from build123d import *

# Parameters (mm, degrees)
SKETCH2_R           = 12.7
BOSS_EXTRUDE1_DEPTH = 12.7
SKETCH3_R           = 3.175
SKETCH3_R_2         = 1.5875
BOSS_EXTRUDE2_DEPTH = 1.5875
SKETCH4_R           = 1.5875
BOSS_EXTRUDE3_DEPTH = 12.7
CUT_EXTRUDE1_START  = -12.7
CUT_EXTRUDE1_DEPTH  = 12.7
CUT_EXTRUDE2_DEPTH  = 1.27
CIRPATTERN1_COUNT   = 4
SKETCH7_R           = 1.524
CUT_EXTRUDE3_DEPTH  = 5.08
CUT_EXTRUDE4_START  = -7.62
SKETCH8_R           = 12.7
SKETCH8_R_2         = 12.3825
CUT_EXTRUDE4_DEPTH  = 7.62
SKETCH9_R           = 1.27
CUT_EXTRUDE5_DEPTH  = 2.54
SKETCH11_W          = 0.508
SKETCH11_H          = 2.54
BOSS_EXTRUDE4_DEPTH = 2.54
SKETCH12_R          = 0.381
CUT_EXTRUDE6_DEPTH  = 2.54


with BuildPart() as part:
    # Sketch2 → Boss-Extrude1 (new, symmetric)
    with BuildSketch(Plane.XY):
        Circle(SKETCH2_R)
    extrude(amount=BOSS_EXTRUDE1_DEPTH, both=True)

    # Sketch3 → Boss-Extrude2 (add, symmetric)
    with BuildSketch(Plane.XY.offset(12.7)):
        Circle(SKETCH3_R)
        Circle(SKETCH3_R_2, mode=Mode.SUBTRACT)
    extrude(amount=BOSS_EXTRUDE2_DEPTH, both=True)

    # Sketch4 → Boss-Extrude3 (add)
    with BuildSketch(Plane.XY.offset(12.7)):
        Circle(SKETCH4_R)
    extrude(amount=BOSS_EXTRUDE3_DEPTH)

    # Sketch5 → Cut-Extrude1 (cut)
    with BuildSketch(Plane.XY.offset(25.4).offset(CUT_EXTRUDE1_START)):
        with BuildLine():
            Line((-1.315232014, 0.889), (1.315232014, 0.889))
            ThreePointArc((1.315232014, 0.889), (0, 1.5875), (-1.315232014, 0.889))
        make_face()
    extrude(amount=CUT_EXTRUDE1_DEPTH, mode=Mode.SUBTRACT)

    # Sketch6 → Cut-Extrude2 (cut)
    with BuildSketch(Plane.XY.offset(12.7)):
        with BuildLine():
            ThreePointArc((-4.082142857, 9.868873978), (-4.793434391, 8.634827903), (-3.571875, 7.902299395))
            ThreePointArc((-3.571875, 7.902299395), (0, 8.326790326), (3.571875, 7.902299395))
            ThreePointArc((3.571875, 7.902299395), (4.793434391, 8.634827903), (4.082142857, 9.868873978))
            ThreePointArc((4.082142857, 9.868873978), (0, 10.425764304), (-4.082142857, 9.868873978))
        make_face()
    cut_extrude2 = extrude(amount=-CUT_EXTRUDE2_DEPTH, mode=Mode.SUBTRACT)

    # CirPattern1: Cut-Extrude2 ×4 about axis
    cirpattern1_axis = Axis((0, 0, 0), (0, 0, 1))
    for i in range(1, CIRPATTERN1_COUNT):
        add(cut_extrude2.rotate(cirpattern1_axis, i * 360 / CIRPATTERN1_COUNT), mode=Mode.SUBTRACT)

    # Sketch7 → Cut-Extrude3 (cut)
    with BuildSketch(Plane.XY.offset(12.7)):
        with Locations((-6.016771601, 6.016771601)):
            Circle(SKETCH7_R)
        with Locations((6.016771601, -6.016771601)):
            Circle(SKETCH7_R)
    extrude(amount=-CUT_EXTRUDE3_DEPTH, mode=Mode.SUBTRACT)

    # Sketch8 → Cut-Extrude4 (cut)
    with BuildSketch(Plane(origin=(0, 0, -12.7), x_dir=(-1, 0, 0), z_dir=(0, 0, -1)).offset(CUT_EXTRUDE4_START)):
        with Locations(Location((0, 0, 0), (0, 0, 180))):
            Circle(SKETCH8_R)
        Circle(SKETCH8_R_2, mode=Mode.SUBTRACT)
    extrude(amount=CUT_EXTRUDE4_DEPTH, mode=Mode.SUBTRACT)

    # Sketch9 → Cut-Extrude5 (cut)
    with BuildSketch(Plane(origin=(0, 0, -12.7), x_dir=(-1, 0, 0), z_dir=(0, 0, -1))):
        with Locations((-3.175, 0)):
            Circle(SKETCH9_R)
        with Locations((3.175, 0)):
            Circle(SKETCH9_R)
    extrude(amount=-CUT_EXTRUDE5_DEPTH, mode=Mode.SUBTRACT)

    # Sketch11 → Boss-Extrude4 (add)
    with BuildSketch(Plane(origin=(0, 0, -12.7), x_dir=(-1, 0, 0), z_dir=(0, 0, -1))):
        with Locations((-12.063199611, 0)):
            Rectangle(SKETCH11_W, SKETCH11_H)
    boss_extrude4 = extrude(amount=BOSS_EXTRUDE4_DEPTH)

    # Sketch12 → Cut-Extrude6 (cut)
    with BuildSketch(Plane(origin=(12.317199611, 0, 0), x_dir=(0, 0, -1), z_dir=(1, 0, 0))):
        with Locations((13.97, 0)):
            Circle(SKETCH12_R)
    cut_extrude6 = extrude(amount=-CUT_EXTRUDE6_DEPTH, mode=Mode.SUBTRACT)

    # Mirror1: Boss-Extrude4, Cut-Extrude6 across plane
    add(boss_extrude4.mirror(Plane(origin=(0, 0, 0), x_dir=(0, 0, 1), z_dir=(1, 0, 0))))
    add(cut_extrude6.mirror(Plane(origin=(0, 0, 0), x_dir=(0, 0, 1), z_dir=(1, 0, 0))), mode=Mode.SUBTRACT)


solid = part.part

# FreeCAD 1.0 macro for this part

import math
import FreeCAD as App
import Part
import Sketcher

V = App.Vector
Q = App.Units.Quantity

doc = App.newDocument("Part")
params = doc.addObject("Spreadsheet::Sheet", "Params")
for row, (alias, value) in enumerate([
    ("sketch1_diameter", "1 in"),
    ("pad1_length", "1 in"),
    ("sketch2_diameter", "0.25 in"),
    ("sketch2_diameter2", "0.125 in"),
    ("pad2_length", "0.125 in"),
    ("sketch3_diameter", "0.125 in"),
    ("pad3_length", "0.5 in"),
    ("sketch4_radius", "0.0625 in"),
    ("pocket1_length", "0.5 in"),
    ("sketch5_radius", "0.6 in"),
    ("sketch5_radius2", "0.04 in"),
    ("pocket2_length", "0.05 in"),
    ("sketch6_diameter", "0.12 in"),
    ("pocket3_length", "0.2 in"),
    ("sketch7_diameter", "1 in"),
    ("sketch7_diameter2", "0.975 in"),
    ("pocket4_length", "0.3 in"),
    ("sketch8_diameter", "0.1 in"),
    ("pocket5_length", "0.1 in"),
    ("sketch9_height", "0.1 in"),
    ("sketch9_width", "0.02 in"),
    ("pad4_length", "0.1 in"),
    ("sketch10_diameter", "0.03 in"),
    ("pocket6_length", "0.1 in"),
], start=1):
    params.set(f"A{row}", alias)
    params.set(f"B{row}", "=" + value)
    params.setAlias(f"B{row}", alias)

body = doc.addObject("PartDesign::Body", "Body")

# Sketch on XY plane
sketch1 = body.newObject("Sketcher::SketchObject", "Sketch")
sketch1.AttachmentSupport = (doc.getObject("XY_Plane"), [""])
sketch1.MapMode = "FlatFace"
sketch1.addGeometry(Part.Circle(V(0, 0, 0), V(0, 0, 1), 13), False)
sketch1.addConstraint([
    Sketcher.Constraint("Coincident", 0, 3, -1, 1),
    Sketcher.Constraint("Diameter", 0, Q("1 in")),
])
sketch1.setExpression("Constraints[1]", "Params.sketch1_diameter")
pad1 = body.newObject("PartDesign::Pad", "Pad")
pad1.Profile = sketch1
pad1.setExpression("Length", "Params.pad1_length")
pad1.Midplane = True

# Sketch on XY plane
sketch2 = body.newObject("Sketcher::SketchObject", "Sketch001")
sketch2.AttachmentSupport = (doc.getObject("XY_Plane"), [""])
sketch2.MapMode = "FlatFace"
sketch2.AttachmentOffset = App.Placement(V(0, 0, 0.5 * 25.4), App.Rotation())
sketch2.addGeometry([
    Part.Circle(V(0, 0, 0), V(0, 0, 1), 3.2),
    Part.Circle(V(0, 0, 0), V(0, 0, 1), 1.6),
], False)
sketch2.addConstraint([
    Sketcher.Constraint("Coincident", 0, 3, -1, 1),
    Sketcher.Constraint("Coincident", 1, 3, -1, 1),
    Sketcher.Constraint("Diameter", 0, Q("0.25 in")),
    Sketcher.Constraint("Diameter", 1, Q("0.125 in")),
])
sketch2.setExpression("Constraints[2]", "Params.sketch2_diameter")
sketch2.setExpression("Constraints[3]", "Params.sketch2_diameter2")
pad2 = body.newObject("PartDesign::Pad", "Pad001")
pad2.Profile = sketch2
pad2.setExpression("Length", "Params.pad2_length")
pad2.Midplane = True

# Sketch on XY plane
sketch3 = body.newObject("Sketcher::SketchObject", "Sketch002")
sketch3.AttachmentSupport = (doc.getObject("XY_Plane"), [""])
sketch3.MapMode = "FlatFace"
sketch3.AttachmentOffset = App.Placement(V(0, 0, 0.5 * 25.4), App.Rotation())
sketch3.addGeometry(Part.Circle(V(0, 0, 0), V(0, 0, 1), 1.6), False)
sketch3.addConstraint([
    Sketcher.Constraint("Coincident", 0, 3, -1, 1),
    Sketcher.Constraint("Diameter", 0, Q("0.125 in")),
])
sketch3.setExpression("Constraints[1]", "Params.sketch3_diameter")
pad3 = body.newObject("PartDesign::Pad", "Pad002")
pad3.Profile = sketch3
pad3.setExpression("Length", "Params.pad3_length")

# Sketch on XY plane
sketch4 = body.newObject("Sketcher::SketchObject", "Sketch003")
sketch4.AttachmentSupport = (doc.getObject("XY_Plane"), [""])
sketch4.MapMode = "FlatFace"
sketch4.AttachmentOffset = App.Placement(V(0, 0, 0.5 * 25.4), App.Rotation())
sketch4.addGeometry([
    Part.LineSegment(V(-1.3, 0.9, 0), V(1.3, 0.9, 0)),
    Part.ArcOfCircle(Part.Circle(V(0, 0, 0), V(0, 0, 1), 1.6), math.radians(34), math.radians(146)),
], False)
sketch4.addConstraint([
    Sketcher.Constraint("Coincident", 0, 1, 1, 2),
    Sketcher.Constraint("Coincident", 1, 1, 0, 2),
    Sketcher.Constraint("Horizontal", 0),
    Sketcher.Constraint("Coincident", 1, 3, -1, 1),
    Sketcher.Constraint("Radius", 1, Q("0.0625 in")),
    Sketcher.Constraint("DistanceY", -1, 1, 0, 1, Q("0.035 in")),
])
sketch4.setExpression("Constraints[4]", "Params.sketch4_radius")
pocket1 = body.newObject("PartDesign::Pocket", "Pocket")
pocket1.Profile = sketch4
pocket1.setExpression("Length", "Params.pocket1_length")
pocket1.Reversed = True

# Sketch on XY plane
sketch5 = body.newObject("Sketcher::SketchObject", "Sketch004")
sketch5.AttachmentSupport = (doc.getObject("XY_Plane"), [""])
sketch5.MapMode = "FlatFace"
sketch5.AttachmentOffset = App.Placement(V(0, 0, 0.5 * 25.4), App.Rotation())
sketch5.addGeometry([
    Part.ArcOfCircle(Part.Circle(V(-3.8, 8.9, 0), V(0, 0, 1), 1), math.radians(106), math.radians(284)),
    Part.ArcOfCircle(Part.Circle(V(0, -6.9, 0), V(0, 0, 1), 15.2), math.radians(76), math.radians(104)),
    Part.ArcOfCircle(Part.Circle(V(3.8, 8.9, 0), V(0, 0, 1), 1), math.radians(-104), math.radians(74)),
    Part.ArcOfCircle(Part.Circle(V(0, -4.8, 0), V(0, 0, 1), 15.2), math.radians(74), math.radians(106)),
], False)
sketch5.addConstraint([
    Sketcher.Constraint("Tangent", 0, 2, 1, 2),
    Sketcher.Constraint("Tangent", 1, 1, 2, 1),
    Sketcher.Constraint("Tangent", 2, 2, 3, 1),
    Sketcher.Constraint("Tangent", 3, 2, 0, 1),
    Sketcher.Constraint("Equal", 0, 2),
    Sketcher.Constraint("Equal", 1, 3),
    Sketcher.Constraint("Symmetric", 0, 3, 2, 3, -2),
    Sketcher.Constraint("Radius", 1, Q("0.6 in")),
    Sketcher.Constraint("Radius", 0, Q("0.04 in")),
    Sketcher.Constraint("DistanceX", 0, 3, 2, 3, Q("0.3 in")),
    Sketcher.Constraint("DistanceY", -1, 1, 0, 3, Q("0.35 in")),
])
sketch5.setExpression("Constraints[7]", "Params.sketch5_radius")
sketch5.setExpression("Constraints[8]", "Params.sketch5_radius2")
pocket2 = body.newObject("PartDesign::Pocket", "Pocket001")
pocket2.Profile = sketch5
pocket2.setExpression("Length", "Params.pocket2_length")
doc.recompute()

polarpattern = body.newObject("PartDesign::PolarPattern", "PolarPattern")
polarpattern.Originals = [pocket2]
polarpattern.Axis = (doc.getObject("Z_Axis"), [""])
polarpattern.Angle = 360
polarpattern.Occurrences = 4
body.Tip = polarpattern

# Sketch on XY plane
sketch6 = body.newObject("Sketcher::SketchObject", "Sketch005")
sketch6.AttachmentSupport = (doc.getObject("XY_Plane"), [""])
sketch6.MapMode = "FlatFace"
sketch6.AttachmentOffset = App.Placement(V(0, 0, 0.5 * 25.4), App.Rotation())
sketch6.addGeometry([
    Part.Circle(V(-6, 6, 0), V(0, 0, 1), 1.5),
    Part.Circle(V(6, -6, 0), V(0, 0, 1), 1.5),
], False)
sketch6.addConstraint([
    Sketcher.Constraint("Equal", 0, 1),
    Sketcher.Constraint("Symmetric", 0, 3, 1, 3, -1, 1),
    Sketcher.Constraint("Diameter", 0, Q("0.12 in")),
    Sketcher.Constraint("DistanceX", 0, 3, -1, 1, Q("6.016772 mm")),
    Sketcher.Constraint("DistanceY", -1, 1, 0, 3, Q("6.016772 mm")),
])
sketch6.setExpression("Constraints[2]", "Params.sketch6_diameter")
pocket3 = body.newObject("PartDesign::Pocket", "Pocket002")
pocket3.Profile = sketch6
pocket3.setExpression("Length", "Params.pocket3_length")

# Sketch on XY plane
sketch7 = body.newObject("Sketcher::SketchObject", "Sketch006")
sketch7.AttachmentSupport = (doc.getObject("XY_Plane"), [""])
sketch7.MapMode = "FlatFace"
sketch7.AttachmentOffset = App.Placement(V(0, 0, -0.2 * 25.4), App.Rotation())
sketch7.addGeometry([
    Part.Circle(V(0, 0, 0), V(0, 0, 1), 13),
    Part.Circle(V(0, 0, 0), V(0, 0, 1), 12),
], False)
sketch7.addConstraint([
    Sketcher.Constraint("Coincident", 0, 3, -1, 1),
    Sketcher.Constraint("Coincident", 1, 3, -1, 1),
    Sketcher.Constraint("Diameter", 0, Q("1 in")),
    Sketcher.Constraint("Diameter", 1, Q("0.975 in")),
])
sketch7.setExpression("Constraints[2]", "Params.sketch7_diameter")
sketch7.setExpression("Constraints[3]", "Params.sketch7_diameter2")
pocket4 = body.newObject("PartDesign::Pocket", "Pocket003")
pocket4.Profile = sketch7
pocket4.setExpression("Length", "Params.pocket4_length")

# Sketch on XY plane
sketch8 = body.newObject("Sketcher::SketchObject", "Sketch007")
sketch8.AttachmentSupport = (doc.getObject("XY_Plane"), [""])
sketch8.MapMode = "FlatFace"
sketch8.AttachmentOffset = App.Placement(V(0, 0, -0.5 * 25.4), App.Rotation())
sketch8.addGeometry([
    Part.Circle(V(3.2, 0, 0), V(0, 0, 1), 1.3),
    Part.Circle(V(-3.2, 0, 0), V(0, 0, 1), 1.3),
], False)
sketch8.addConstraint([
    Sketcher.Constraint("Equal", 0, 1),
    Sketcher.Constraint("Symmetric", 0, 3, 1, 3, -1, 1),
    Sketcher.Constraint("PointOnObject", 0, 3, -1),
    Sketcher.Constraint("Diameter", 0, Q("0.1 in")),
    Sketcher.Constraint("DistanceX", 1, 3, 0, 3, Q("0.25 in")),
])
sketch8.setExpression("Constraints[3]", "Params.sketch8_diameter")
pocket5 = body.newObject("PartDesign::Pocket", "Pocket004")
pocket5.Profile = sketch8
pocket5.setExpression("Length", "Params.pocket5_length")
pocket5.Reversed = True

# Sketch on XY plane
sketch9 = body.newObject("Sketcher::SketchObject", "Sketch008")
sketch9.AttachmentSupport = (doc.getObject("XY_Plane"), [""])
sketch9.MapMode = "FlatFace"
sketch9.AttachmentOffset = App.Placement(V(0, 0, -0.5 * 25.4), App.Rotation())
sketch9.addGeometry([
    Part.LineSegment(V(12.3, 1.3, 0), V(12.3, -1.3, 0)),
    Part.LineSegment(V(12.3, -1.3, 0), V(11.8, -1.3, 0)),
    Part.LineSegment(V(11.8, -1.3, 0), V(11.8, 1.3, 0)),
    Part.LineSegment(V(11.8, 1.3, 0), V(12.3, 1.3, 0)),
], False)
sketch9.addConstraint([
    Sketcher.Constraint("Coincident", 0, 2, 1, 1),
    Sketcher.Constraint("Coincident", 1, 2, 2, 1),
    Sketcher.Constraint("Coincident", 2, 2, 3, 1),
    Sketcher.Constraint("Coincident", 3, 2, 0, 1),
    Sketcher.Constraint("Vertical", 0),
    Sketcher.Constraint("Horizontal", 1),
    Sketcher.Constraint("Vertical", 2),
    Sketcher.Constraint("Horizontal", 3),
    Sketcher.Constraint("DistanceY", 0, 2, 0, 1, Q("0.1 in")),
    Sketcher.Constraint("DistanceX", 1, 2, 1, 1, Q("0.02 in")),
    Sketcher.Constraint("DistanceY", 0, 2, -1, 1, Q("0.05 in")),
    Sketcher.Constraint("DistanceX", -1, 1, 0, 2, Q("12.3172 mm")),
])
sketch9.setExpression("Constraints[8]", "Params.sketch9_height")
sketch9.setExpression("Constraints[9]", "Params.sketch9_width")
pad4 = body.newObject("PartDesign::Pad", "Pad003")
pad4.Profile = sketch9
pad4.setExpression("Length", "Params.pad4_length")
pad4.Reversed = True

# Sketch on YZ plane
sketch10 = body.newObject("Sketcher::SketchObject", "Sketch009")
sketch10.AttachmentSupport = (doc.getObject("YZ_Plane"), [""])
sketch10.MapMode = "FlatFace"
sketch10.AttachmentOffset = App.Placement(V(0, 0, 12.3172), App.Rotation())
sketch10.addGeometry(Part.Circle(V(0, -13.97, 0), V(0, 0, 1), 0.38), False)
sketch10.addConstraint([
    Sketcher.Constraint("PointOnObject", 0, 3, -2),
    Sketcher.Constraint("Diameter", 0, Q("0.03 in")),
    Sketcher.Constraint("DistanceY", 0, 3, -1, 1, Q("0.55 in")),
])
sketch10.setExpression("Constraints[1]", "Params.sketch10_diameter")
pocket6 = body.newObject("PartDesign::Pocket", "Pocket005")
pocket6.Profile = sketch10
pocket6.setExpression("Length", "Params.pocket6_length")
doc.recompute()

mirrored = body.newObject("PartDesign::Mirrored", "Mirrored")
mirrored.Originals = [pad4, pocket6]
mirrored.MirrorPlane = (doc.getObject("YZ_Plane"), [""])
body.Tip = mirrored

doc.recompute()
